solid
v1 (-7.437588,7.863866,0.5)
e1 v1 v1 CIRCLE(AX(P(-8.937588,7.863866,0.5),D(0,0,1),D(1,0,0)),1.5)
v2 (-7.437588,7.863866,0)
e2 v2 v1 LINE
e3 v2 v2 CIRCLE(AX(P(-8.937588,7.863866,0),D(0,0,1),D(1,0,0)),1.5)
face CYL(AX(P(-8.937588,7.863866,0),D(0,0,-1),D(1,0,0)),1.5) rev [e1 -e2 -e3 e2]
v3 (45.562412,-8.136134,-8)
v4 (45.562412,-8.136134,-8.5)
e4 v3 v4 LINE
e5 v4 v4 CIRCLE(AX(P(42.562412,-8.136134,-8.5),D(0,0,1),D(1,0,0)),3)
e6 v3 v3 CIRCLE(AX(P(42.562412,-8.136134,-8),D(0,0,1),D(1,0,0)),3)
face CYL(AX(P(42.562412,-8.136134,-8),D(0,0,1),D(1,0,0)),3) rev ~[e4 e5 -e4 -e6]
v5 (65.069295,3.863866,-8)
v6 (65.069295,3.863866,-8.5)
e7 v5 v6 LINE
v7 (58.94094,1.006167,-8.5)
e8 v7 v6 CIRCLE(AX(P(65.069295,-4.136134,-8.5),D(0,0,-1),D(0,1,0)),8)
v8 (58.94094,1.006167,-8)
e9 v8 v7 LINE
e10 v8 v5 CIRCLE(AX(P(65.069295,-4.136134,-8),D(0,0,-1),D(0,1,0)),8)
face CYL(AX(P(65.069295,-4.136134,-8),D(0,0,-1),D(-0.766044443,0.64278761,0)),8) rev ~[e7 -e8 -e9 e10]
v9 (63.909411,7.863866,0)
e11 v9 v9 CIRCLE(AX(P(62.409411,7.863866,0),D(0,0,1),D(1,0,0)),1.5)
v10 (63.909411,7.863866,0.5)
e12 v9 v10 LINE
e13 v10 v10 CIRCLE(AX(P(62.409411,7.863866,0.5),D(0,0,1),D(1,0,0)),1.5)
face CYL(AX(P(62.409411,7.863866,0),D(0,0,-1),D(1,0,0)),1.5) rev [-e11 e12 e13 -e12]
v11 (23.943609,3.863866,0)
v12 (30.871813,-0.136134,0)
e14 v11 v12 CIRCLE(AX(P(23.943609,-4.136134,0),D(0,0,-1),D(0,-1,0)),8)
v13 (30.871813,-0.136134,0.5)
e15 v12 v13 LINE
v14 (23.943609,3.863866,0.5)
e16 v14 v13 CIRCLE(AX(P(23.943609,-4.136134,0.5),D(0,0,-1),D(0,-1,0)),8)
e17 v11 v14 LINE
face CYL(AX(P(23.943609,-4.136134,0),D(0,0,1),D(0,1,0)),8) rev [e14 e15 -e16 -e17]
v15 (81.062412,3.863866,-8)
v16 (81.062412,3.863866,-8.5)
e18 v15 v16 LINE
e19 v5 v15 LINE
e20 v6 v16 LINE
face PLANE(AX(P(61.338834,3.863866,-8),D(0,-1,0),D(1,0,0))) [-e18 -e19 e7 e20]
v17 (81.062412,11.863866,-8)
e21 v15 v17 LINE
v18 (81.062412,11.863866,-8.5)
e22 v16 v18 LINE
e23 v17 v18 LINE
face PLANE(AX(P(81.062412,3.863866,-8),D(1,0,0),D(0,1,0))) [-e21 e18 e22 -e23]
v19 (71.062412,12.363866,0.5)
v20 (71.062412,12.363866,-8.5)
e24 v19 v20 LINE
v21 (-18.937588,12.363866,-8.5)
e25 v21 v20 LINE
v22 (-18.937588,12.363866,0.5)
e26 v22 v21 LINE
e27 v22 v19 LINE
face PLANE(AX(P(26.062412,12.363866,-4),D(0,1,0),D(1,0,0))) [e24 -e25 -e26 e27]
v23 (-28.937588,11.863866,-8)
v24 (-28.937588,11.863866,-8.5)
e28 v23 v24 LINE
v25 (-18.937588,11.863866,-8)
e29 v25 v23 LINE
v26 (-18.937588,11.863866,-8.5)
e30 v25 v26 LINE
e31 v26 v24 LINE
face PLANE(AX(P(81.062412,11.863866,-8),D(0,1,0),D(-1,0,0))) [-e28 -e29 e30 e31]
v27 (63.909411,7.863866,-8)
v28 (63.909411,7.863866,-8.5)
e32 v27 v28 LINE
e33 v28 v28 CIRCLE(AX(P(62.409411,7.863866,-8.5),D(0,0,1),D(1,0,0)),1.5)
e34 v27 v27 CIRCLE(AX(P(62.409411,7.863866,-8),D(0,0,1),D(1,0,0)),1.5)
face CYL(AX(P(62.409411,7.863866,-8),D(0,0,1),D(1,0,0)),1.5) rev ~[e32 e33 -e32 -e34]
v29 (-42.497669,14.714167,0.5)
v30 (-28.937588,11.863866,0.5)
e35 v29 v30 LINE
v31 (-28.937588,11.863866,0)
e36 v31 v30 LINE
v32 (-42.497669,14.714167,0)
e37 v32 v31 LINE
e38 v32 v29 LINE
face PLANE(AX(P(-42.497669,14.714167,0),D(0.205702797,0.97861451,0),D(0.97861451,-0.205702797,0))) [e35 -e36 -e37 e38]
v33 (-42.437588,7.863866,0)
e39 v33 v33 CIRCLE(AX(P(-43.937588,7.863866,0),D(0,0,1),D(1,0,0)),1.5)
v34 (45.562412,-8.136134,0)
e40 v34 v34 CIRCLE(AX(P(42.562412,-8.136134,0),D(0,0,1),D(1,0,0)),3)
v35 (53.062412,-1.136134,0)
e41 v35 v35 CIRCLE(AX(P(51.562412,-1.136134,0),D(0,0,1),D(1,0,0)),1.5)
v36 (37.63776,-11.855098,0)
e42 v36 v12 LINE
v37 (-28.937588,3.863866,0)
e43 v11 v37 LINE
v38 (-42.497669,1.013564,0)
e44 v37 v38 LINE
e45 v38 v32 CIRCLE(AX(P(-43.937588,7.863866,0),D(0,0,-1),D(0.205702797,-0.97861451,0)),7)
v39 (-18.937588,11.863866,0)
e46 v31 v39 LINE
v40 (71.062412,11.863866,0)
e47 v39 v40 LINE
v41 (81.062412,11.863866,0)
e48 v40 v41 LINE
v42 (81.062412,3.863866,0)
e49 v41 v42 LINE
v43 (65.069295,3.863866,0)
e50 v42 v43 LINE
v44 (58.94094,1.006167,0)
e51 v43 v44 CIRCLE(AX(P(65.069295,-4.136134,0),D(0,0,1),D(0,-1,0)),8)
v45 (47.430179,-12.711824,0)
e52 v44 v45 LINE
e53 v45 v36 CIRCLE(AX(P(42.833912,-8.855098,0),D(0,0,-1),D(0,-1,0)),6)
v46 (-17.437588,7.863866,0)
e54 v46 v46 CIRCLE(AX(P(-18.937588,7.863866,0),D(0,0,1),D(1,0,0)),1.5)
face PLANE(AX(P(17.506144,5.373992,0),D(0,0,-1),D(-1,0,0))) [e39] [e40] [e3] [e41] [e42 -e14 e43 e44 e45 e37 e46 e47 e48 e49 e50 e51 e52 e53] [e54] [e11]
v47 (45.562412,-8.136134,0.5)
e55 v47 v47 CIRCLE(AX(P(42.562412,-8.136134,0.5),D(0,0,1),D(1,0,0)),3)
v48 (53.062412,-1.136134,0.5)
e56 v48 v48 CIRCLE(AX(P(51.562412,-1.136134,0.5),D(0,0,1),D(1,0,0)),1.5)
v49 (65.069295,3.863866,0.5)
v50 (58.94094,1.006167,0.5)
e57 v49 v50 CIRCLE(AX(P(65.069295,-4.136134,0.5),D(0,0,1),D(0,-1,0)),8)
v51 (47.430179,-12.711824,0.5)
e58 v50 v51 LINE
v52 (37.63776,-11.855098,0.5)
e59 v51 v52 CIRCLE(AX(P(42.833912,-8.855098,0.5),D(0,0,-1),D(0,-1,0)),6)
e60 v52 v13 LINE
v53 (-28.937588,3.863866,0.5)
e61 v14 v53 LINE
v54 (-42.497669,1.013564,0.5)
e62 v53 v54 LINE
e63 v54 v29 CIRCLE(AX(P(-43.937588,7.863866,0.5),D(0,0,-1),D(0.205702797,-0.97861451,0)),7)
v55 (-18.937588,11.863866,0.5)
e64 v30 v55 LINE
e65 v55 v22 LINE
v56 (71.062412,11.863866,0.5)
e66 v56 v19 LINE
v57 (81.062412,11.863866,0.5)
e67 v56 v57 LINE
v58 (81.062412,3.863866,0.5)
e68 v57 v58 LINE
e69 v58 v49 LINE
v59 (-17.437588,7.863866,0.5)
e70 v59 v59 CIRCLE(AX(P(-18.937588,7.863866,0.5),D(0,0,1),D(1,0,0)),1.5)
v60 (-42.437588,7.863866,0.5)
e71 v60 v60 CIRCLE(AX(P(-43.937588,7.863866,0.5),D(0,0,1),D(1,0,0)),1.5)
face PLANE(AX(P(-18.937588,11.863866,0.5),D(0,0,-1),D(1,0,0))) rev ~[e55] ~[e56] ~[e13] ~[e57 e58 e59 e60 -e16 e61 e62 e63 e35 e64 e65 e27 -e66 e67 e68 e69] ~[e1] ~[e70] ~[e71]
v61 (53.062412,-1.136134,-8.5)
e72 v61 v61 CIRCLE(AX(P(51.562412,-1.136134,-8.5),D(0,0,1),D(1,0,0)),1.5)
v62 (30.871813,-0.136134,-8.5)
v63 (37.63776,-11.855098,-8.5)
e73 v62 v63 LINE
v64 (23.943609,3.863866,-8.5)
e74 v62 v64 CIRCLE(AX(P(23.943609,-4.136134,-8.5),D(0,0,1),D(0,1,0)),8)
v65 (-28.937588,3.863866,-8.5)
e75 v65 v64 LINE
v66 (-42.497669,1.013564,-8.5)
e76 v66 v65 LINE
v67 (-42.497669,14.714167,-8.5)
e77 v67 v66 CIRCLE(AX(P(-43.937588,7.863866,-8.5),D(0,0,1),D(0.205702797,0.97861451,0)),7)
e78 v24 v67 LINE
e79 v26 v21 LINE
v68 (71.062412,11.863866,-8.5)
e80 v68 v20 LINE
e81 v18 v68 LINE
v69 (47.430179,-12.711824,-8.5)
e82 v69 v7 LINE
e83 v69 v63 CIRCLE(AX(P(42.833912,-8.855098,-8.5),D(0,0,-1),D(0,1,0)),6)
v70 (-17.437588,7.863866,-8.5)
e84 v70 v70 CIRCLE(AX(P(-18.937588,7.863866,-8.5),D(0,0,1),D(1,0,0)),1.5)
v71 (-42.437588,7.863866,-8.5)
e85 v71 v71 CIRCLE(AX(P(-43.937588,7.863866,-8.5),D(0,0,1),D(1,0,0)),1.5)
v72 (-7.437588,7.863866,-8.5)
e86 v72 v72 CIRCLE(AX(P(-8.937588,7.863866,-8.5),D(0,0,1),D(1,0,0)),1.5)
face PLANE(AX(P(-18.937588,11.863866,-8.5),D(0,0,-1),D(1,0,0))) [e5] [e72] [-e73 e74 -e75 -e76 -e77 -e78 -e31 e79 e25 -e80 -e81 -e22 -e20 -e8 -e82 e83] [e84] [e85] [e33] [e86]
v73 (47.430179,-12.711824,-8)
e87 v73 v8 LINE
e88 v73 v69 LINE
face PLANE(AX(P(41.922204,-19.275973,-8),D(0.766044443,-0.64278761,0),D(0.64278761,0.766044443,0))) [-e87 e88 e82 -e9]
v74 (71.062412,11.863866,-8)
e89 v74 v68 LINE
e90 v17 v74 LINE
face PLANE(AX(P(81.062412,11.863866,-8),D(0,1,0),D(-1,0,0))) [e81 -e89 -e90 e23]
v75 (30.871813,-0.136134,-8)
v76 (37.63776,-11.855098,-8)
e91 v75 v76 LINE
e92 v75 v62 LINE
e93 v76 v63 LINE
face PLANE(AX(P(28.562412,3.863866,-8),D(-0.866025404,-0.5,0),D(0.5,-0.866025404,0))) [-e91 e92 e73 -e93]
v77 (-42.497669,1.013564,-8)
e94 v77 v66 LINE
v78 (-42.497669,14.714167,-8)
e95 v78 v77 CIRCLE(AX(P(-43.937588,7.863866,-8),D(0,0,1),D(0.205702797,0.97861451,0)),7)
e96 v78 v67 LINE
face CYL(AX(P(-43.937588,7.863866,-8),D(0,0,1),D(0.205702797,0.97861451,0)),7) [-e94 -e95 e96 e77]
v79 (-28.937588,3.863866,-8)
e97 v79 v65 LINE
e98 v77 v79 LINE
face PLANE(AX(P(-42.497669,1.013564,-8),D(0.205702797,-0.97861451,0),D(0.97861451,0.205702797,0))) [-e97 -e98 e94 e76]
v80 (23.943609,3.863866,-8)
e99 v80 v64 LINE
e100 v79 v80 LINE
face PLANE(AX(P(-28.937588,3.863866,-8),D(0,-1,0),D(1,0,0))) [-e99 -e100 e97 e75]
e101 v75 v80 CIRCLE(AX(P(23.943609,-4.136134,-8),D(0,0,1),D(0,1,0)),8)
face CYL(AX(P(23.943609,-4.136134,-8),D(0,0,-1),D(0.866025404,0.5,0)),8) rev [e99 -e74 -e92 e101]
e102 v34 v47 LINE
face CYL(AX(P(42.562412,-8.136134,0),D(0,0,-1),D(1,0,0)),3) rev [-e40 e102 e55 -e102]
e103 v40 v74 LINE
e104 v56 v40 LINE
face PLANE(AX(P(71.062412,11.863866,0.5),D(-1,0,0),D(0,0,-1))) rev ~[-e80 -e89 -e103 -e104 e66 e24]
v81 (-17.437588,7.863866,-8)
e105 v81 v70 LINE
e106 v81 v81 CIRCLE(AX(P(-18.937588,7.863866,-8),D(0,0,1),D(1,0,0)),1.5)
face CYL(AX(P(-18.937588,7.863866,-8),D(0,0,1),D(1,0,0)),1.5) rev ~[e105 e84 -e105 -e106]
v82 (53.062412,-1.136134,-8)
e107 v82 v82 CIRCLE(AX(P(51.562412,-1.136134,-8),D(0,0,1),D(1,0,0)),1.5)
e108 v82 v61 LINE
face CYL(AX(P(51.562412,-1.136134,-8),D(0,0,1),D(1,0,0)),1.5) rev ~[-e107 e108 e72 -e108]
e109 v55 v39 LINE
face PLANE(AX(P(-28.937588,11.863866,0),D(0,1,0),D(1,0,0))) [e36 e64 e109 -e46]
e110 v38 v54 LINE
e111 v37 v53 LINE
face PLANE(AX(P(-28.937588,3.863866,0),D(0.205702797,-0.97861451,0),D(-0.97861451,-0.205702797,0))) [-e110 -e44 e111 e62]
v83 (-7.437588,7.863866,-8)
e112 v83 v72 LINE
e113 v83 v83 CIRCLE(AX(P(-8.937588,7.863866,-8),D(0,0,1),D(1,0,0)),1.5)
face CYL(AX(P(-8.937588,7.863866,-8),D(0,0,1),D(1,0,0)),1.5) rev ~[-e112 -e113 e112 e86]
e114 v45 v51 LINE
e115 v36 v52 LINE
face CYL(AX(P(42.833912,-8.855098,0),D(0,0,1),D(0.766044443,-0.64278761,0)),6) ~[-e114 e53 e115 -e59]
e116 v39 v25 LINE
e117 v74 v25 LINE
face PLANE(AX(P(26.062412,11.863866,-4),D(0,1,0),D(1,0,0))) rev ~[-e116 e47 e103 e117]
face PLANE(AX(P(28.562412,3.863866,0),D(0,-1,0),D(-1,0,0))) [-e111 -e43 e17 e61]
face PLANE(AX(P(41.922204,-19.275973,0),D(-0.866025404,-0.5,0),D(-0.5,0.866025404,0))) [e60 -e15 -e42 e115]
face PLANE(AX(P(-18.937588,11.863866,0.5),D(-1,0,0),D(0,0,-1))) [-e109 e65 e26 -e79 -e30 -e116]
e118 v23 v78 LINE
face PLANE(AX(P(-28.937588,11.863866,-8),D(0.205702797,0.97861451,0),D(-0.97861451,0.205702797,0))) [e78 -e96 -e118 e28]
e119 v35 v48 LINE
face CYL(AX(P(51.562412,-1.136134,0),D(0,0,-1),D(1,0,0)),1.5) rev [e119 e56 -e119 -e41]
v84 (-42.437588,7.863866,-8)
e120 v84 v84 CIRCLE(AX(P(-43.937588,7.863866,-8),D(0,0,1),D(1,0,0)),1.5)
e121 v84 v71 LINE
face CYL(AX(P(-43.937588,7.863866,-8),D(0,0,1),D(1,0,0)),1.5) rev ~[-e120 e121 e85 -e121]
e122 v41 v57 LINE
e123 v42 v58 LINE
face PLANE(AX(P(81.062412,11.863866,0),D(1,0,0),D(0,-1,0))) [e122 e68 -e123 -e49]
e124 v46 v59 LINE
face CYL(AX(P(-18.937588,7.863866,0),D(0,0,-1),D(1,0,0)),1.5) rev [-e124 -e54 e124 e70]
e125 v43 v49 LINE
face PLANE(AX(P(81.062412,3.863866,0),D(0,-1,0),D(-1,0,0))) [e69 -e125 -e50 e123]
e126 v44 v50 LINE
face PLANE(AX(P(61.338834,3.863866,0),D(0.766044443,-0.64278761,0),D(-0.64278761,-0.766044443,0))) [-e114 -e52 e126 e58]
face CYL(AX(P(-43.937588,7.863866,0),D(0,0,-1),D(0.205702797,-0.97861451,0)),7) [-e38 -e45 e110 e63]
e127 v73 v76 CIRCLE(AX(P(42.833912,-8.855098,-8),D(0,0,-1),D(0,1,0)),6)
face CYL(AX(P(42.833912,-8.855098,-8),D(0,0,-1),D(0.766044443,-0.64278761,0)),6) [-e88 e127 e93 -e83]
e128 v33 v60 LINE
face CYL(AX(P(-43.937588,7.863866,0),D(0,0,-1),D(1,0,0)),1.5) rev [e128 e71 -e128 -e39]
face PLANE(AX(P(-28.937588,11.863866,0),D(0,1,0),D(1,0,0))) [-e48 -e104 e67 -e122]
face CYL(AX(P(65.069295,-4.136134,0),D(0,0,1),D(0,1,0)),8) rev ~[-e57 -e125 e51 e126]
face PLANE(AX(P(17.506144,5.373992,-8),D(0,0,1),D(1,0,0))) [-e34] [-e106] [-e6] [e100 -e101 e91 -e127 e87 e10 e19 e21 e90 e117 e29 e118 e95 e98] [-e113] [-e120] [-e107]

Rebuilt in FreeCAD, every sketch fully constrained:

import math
import FreeCAD as App
import Part
import Sketcher
Q = App.Units.Quantity


def edges_at(feature, points):
    """Names of the edges that pass closest to the given points."""
    edges = feature.Shape.Edges
    near = lambda p: min(range(len(edges)), key=lambda i: edges[i].distToShape(Part.Vertex(*p))[0])
    return sorted({f"Edge{near(p) + 1}" for p in points})

doc = App.newDocument("Part")
body = doc.addObject("PartDesign::Body", "Body")

sketch1 = body.newObject("Sketcher::SketchObject", "Sketch")
sketch1.AttachmentSupport = (doc.getObject("XY_Plane"), [""])
sketch1.MapMode = "FlatFace"
sketch1.addGeometry([
    Part.LineSegment(App.Vector(81.1, 11.9, 0), App.Vector(-28.9, 11.9, 0)),
    Part.LineSegment(App.Vector(-28.9, 11.9, 0), App.Vector(-42.5, 14.7, 0)),
    Part.ArcOfCircle(Part.Circle(App.Vector(-43.9, 7.9, 0), App.Vector(0, 0, 1), 7), math.radians(78), math.radians(282)),
    Part.LineSegment(App.Vector(-42.5, 1, 0), App.Vector(-28.9, 3.9, 0)),
    Part.LineSegment(App.Vector(-28.9, 3.9, 0), App.Vector(28.6, 3.9, 0)),
    Part.LineSegment(App.Vector(28.6, 3.9, 0), App.Vector(41.9, -19.3, 0)),
    Part.LineSegment(App.Vector(41.9, -19.3, 0), App.Vector(61.3, 3.9, 0)),
    Part.LineSegment(App.Vector(61.3, 3.9, 0), App.Vector(81.1, 3.9, 0)),
    Part.LineSegment(App.Vector(81.1, 3.9, 0), App.Vector(81.1, 11.9, 0)),
    Part.Circle(App.Vector(42.6, -8.1, 0), App.Vector(0, 0, 1), 3),
    Part.Circle(App.Vector(51.6, -1.1, 0), App.Vector(0, 0, 1), 1.5),
    Part.Circle(App.Vector(62.4, 7.9, 0), App.Vector(0, 0, 1), 1.5),
    Part.Circle(App.Vector(-8.9, 7.9, 0), App.Vector(0, 0, 1), 1.5),
    Part.Circle(App.Vector(-18.9, 7.9, 0), App.Vector(0, 0, 1), 1.5),
    Part.Circle(App.Vector(-43.9, 7.9, 0), App.Vector(0, 0, 1), 1.5),
], False)
sketch1.addConstraint([
    Sketcher.Constraint("Coincident", 0, 2, 1, 1),
    Sketcher.Constraint("Tangent", 1, 2, 2, 1),
    Sketcher.Constraint("Tangent", 2, 2, 3, 1),
    Sketcher.Constraint("Coincident", 3, 2, 4, 1),
    Sketcher.Constraint("Coincident", 4, 2, 5, 1),
    Sketcher.Constraint("Coincident", 5, 2, 6, 1),
    Sketcher.Constraint("Coincident", 6, 2, 7, 1),
    Sketcher.Constraint("Coincident", 7, 2, 8, 1),
    Sketcher.Constraint("Coincident", 8, 2, 0, 1),
    Sketcher.Constraint("Horizontal", 0),
    Sketcher.Constraint("Horizontal", 4),
    Sketcher.Constraint("Horizontal", 7),
    Sketcher.Constraint("Vertical", 8),
    Sketcher.Constraint("Coincident", 14, 3, 2, 3),
    Sketcher.Constraint("Equal", 10, 11),
    Sketcher.Constraint("Equal", 11, 12),
    Sketcher.Constraint("Equal", 12, 13),
    Sketcher.Constraint("Equal", 13, 14),
    Sketcher.Constraint("Horizontal", 2, 3, 11, 3),
    Sketcher.Constraint("Horizontal", 11, 3, 12, 3),
    Sketcher.Constraint("Horizontal", 12, 3, 13, 3),
    Sketcher.Constraint("Horizontal", 4, 2, 6, 2),
    Sketcher.Constraint("Vertical", 1, 2, 2, 2),
    Sketcher.Constraint("Vertical", 0, 2, 3, 2),
    Sketcher.Constraint("Diameter", 9, 6.0),
    Sketcher.Constraint("Diameter", 10, 3.0),
    Sketcher.Constraint("Radius", 2, 7.0),
    Sketcher.Constraint("DistanceX", 0, 2, 0, 1, 110.0),
    Sketcher.Constraint("DistanceY", 8, 1, 8, 2, 8.0),
    Sketcher.Constraint("Angle", 5, Q("-60 deg")),
    Sketcher.Constraint("Angle", 6, Q("50 deg")),
    Sketcher.Constraint("DistanceX", 4, 1, 4, 2, 57.5),
    Sketcher.Constraint("DistanceY", 9, 3, 2, 3, 16.0),
    Sketcher.Constraint("DistanceX", 9, 3, 10, 3, 9.0),
    Sketcher.Constraint("DistanceY", 9, 3, 10, 3, 7.0),
    Sketcher.Constraint("DistanceX", 2, 3, 12, 3, 35.0),
    Sketcher.Constraint("DistanceX", 13, 3, 12, 3, 10.0),
    Sketcher.Constraint("DistanceX", 0, 2, 13, 3, 10.0),
    Sketcher.Constraint("DistanceX", 4, 2, 9, 3, 14.0),
    Sketcher.Constraint("DistanceX", 10, 3, 11, 3, 10.846999),
    Sketcher.Constraint("DistanceX", 7, 1, 7, 2, 19.723578),
    Sketcher.Constraint("DistanceX", 2, 3, -1, 1, 43.937588),
    Sketcher.Constraint("DistanceY", -1, 1, 2, 3, 7.863866),
])
pad1 = body.newObject("PartDesign::Pad", "Pad")
pad1.Profile = sketch1
pad1.Length = 0.5
body2 = doc.addObject("PartDesign::Body", "Body001")

sketch2 = body2.newObject("Sketcher::SketchObject", "Sketch001")
sketch2.AttachmentSupport = (doc.getObject("XY_Plane001"), [""])
sketch2.MapMode = "FlatFace"
sketch2.AttachmentOffset = App.Placement(App.Vector(0, 0, -8), App.Rotation())
sketch2.addGeometry([
    Part.LineSegment(App.Vector(41.9, -19.3, 0), App.Vector(61.3, 3.9, 0)),
    Part.LineSegment(App.Vector(61.3, 3.9, 0), App.Vector(81.1, 3.9, 0)),
    Part.LineSegment(App.Vector(81.1, 3.9, 0), App.Vector(81.1, 11.9, 0)),
    Part.LineSegment(App.Vector(81.1, 11.9, 0), App.Vector(-28.9, 11.9, 0)),
    Part.LineSegment(App.Vector(-28.9, 11.9, 0), App.Vector(-42.5, 14.7, 0)),
    Part.ArcOfCircle(Part.Circle(App.Vector(-43.9, 7.9, 0), App.Vector(0, 0, 1), 7), math.radians(78), math.radians(282)),
    Part.LineSegment(App.Vector(-42.5, 1, 0), App.Vector(-28.9, 3.9, 0)),
    Part.LineSegment(App.Vector(-28.9, 3.9, 0), App.Vector(28.6, 3.9, 0)),
    Part.LineSegment(App.Vector(28.6, 3.9, 0), App.Vector(41.9, -19.3, 0)),
    Part.Circle(App.Vector(42.6, -8.1, 0), App.Vector(0, 0, 1), 3),
    Part.Circle(App.Vector(51.6, -1.1, 0), App.Vector(0, 0, 1), 1.5),
    Part.Circle(App.Vector(-43.9, 7.9, 0), App.Vector(0, 0, 1), 1.5),
    Part.Circle(App.Vector(-18.9, 7.9, 0), App.Vector(0, 0, 1), 1.5),
    Part.Circle(App.Vector(-8.9, 7.9, 0), App.Vector(0, 0, 1), 1.5),
    Part.Circle(App.Vector(62.4, 7.9, 0), App.Vector(0, 0, 1), 1.5),
], False)
sketch2.addConstraint([
    Sketcher.Constraint("Coincident", 0, 2, 1, 1),
    Sketcher.Constraint("Coincident", 1, 2, 2, 1),
    Sketcher.Constraint("Coincident", 2, 2, 3, 1),
    Sketcher.Constraint("Coincident", 3, 2, 4, 1),
    Sketcher.Constraint("Tangent", 4, 2, 5, 1),
    Sketcher.Constraint("Tangent", 5, 2, 6, 1),
    Sketcher.Constraint("Coincident", 6, 2, 7, 1),
    Sketcher.Constraint("Coincident", 7, 2, 8, 1),
    Sketcher.Constraint("Coincident", 8, 2, 0, 1),
    Sketcher.Constraint("Horizontal", 1),
    Sketcher.Constraint("Vertical", 2),
    Sketcher.Constraint("Horizontal", 3),
    Sketcher.Constraint("Horizontal", 7),
    Sketcher.Constraint("Coincident", 11, 3, 5, 3),
    Sketcher.Constraint("Equal", 10, 11),
    Sketcher.Constraint("Equal", 11, 12),
    Sketcher.Constraint("Equal", 12, 13),
    Sketcher.Constraint("Equal", 13, 14),
    Sketcher.Constraint("Horizontal", 11, 3, 12, 3),
    Sketcher.Constraint("Horizontal", 12, 3, 13, 3),
    Sketcher.Constraint("Horizontal", 13, 3, 14, 3),
    Sketcher.Constraint("Horizontal", 1, 2, 6, 2),
    Sketcher.Constraint("Vertical", 4, 2, 5, 2),
    Sketcher.Constraint("Vertical", 3, 2, 6, 2),
    Sketcher.Constraint("Diameter", 9, 6.0),
    Sketcher.Constraint("Diameter", 10, 3.0),
    Sketcher.Constraint("Radius", 5, 7.0),
    Sketcher.Constraint("DistanceX", 3, 2, 3, 1, 110.0),
    Sketcher.Constraint("DistanceY", 2, 1, 2, 2, 8.0),
    Sketcher.Constraint("Angle", 0, Q("50 deg")),
    Sketcher.Constraint("Angle", 8, Q("-60 deg")),
    Sketcher.Constraint("DistanceX", 7, 1, 7, 2, 57.5),
    Sketcher.Constraint("DistanceY", 9, 3, 5, 3, 16.0),
    Sketcher.Constraint("DistanceX", 9, 3, 10, 3, 9.0),
    Sketcher.Constraint("DistanceY", 9, 3, 10, 3, 7.0),
    Sketcher.Constraint("DistanceX", 5, 3, 12, 3, 25.0),
    Sketcher.Constraint("DistanceX", 12, 3, 13, 3, 10.0),
    Sketcher.Constraint("DistanceX", 13, 3, 1, 2, 90.0),
    Sketcher.Constraint("DistanceX", 7, 2, 9, 3, 14.0),
    Sketcher.Constraint("DistanceX", 10, 3, 14, 3, 10.846999),
    Sketcher.Constraint("DistanceX", 1, 1, 1, 2, 19.723578),
    Sketcher.Constraint("DistanceX", 5, 3, -1, 1, 43.937588),
    Sketcher.Constraint("DistanceY", -1, 1, 5, 3, 7.863866),
])
pad2 = body2.newObject("PartDesign::Pad", "Pad001")
pad2.Profile = sketch2
pad2.Length = 0.5
pad2.Reversed = True
body.AllowCompound = True
doc.recompute()

boolean = body.newObject("PartDesign::Boolean", "Boolean")
boolean.Type = "Fuse"
boolean.addObjects([body2])

sketch3 = body.newObject("Sketcher::SketchObject", "Sketch002")
sketch3.AttachmentSupport = (doc.getObject("XZ_Plane"), [""])
sketch3.MapMode = "FlatFace"
sketch3.AttachmentOffset = App.Placement(App.Vector(0, 0, -11.863866), App.Rotation())
sketch3.addGeometry([
    Part.LineSegment(App.Vector(-19, -8, 0), App.Vector(-19, 0, 0)),
    Part.LineSegment(App.Vector(-19, 0, 0), App.Vector(71, 0, 0)),
    Part.LineSegment(App.Vector(71, 0, 0), App.Vector(71, -8, 0)),
    Part.LineSegment(App.Vector(71, -8, 0), App.Vector(-19, -8, 0)),
], False)
sketch3.addConstraint([
    Sketcher.Constraint("Coincident", 0, 2, 1, 1),
    Sketcher.Constraint("Coincident", 1, 2, 2, 1),
    Sketcher.Constraint("Coincident", 2, 2, 3, 1),
    Sketcher.Constraint("Coincident", 3, 2, 0, 1),
    Sketcher.Constraint("Vertical", 0),
    Sketcher.Constraint("Horizontal", 1),
    Sketcher.Constraint("Vertical", 2),
    Sketcher.Constraint("Horizontal", 3),
    Sketcher.Constraint("DistanceX", 1, 1, 1, 2, 90.0),
    Sketcher.Constraint("DistanceY", 0, 1, 0, 2, 9.0),
    Sketcher.Constraint("DistanceY", -1, 1, 0, 2, 0.5),
    Sketcher.Constraint("DistanceX", 0, 2, -1, 1, 18.937588),
])
pad3 = body.newObject("PartDesign::Pad", "Pad002")
pad3.Profile = sketch3
pad3.Length = 0.5
pad3.Reversed = True
doc.recompute()

fillet = body.newObject("PartDesign::Fillet", "Fillet")
fillet.Base = (pad3, edges_at(pad3, [
    (61.339, 3.864, 0.25),
    (28.562, 3.864, 0.25),
    (28.562, 3.864, -8.25),
    (61.339, 3.864, -8.25),
]))
fillet.Radius = 8
doc.recompute()

fillet2 = body.newObject("PartDesign::Fillet", "Fillet001")
fillet2.Base = (fillet, edges_at(fillet, [(41.922, -19.276, 0.25), (41.922, -19.276, -8.25)]))
fillet2.Radius = 6

doc.recompute()
